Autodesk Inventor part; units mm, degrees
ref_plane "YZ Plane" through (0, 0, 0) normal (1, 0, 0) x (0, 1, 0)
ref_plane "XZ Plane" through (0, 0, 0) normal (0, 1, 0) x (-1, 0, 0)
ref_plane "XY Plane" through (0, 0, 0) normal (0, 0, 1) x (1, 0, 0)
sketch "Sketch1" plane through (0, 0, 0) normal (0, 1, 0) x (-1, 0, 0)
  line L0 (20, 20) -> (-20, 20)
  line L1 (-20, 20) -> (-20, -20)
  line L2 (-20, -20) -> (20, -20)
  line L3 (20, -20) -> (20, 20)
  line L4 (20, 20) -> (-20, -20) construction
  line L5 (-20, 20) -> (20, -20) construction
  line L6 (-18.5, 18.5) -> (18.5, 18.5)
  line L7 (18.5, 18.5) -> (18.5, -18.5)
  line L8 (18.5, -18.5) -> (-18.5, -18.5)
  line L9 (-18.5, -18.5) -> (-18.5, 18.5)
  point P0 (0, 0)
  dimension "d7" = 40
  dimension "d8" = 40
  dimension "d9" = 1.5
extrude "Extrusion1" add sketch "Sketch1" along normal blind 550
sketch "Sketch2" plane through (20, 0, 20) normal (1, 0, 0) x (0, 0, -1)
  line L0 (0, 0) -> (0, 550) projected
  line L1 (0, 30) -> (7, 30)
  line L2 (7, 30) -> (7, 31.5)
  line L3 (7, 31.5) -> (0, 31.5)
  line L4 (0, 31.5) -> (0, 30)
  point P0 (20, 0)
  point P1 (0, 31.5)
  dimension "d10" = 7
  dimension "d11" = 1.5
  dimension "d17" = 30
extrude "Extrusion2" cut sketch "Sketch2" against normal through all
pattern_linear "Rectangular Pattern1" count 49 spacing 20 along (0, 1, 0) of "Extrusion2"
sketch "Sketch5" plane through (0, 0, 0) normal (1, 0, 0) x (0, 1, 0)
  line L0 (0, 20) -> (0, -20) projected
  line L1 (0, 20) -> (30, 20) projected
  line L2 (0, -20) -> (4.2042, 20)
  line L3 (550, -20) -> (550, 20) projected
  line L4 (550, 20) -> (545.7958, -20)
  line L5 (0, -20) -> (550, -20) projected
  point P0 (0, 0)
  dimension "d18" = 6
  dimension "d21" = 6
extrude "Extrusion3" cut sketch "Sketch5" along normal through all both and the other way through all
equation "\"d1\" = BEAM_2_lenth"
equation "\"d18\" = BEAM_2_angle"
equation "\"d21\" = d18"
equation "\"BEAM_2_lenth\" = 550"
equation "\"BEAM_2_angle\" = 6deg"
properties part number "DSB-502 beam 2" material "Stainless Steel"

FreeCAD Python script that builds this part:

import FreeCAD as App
import Part
import Sketcher

V = App.Vector
Q = App.Units.Quantity


def add_polygon(sketch, points):
    """Adds a closed chain of lines whose ends are joined by coincident constraints."""
    first, n = sketch.GeometryCount, len(points)
    for a, b in zip(points, points[1:] + points[:1]):
        sketch.addGeometry(Part.LineSegment(App.Vector(*a, 0), App.Vector(*b, 0)), False)
    for i in range(n):
        sketch.addConstraint(Sketcher.Constraint("Coincident", first + i, 2, first + (i + 1) % n, 1))

doc = App.newDocument("Part")
body = doc.addObject("PartDesign::Body", "Body")

# Sketch on XZ plane
sketch1 = body.newObject("Sketcher::SketchObject", "Sketch")
sketch1.AttachmentSupport = (doc.getObject("XZ_Plane"), [""])
sketch1.MapMode = "FlatFace"
add_polygon(sketch1, [(-20, -20), (-20, 20), (20, 20), (20, -20)])  # lines 0-3
add_polygon(sketch1, [(18, -18), (18, 18), (-18, 18), (-18, -18)])  # lines 4-7
sketch1.addConstraint([
    Sketcher.Constraint("Vertical", 0),
    Sketcher.Constraint("Horizontal", 1),
    Sketcher.Constraint("Vertical", 2),
    Sketcher.Constraint("Horizontal", 3),
    Sketcher.Constraint("Vertical", 4),
    Sketcher.Constraint("Horizontal", 5),
    Sketcher.Constraint("Vertical", 6),
    Sketcher.Constraint("Horizontal", 7),
    Sketcher.Constraint("Symmetric", 0, 2, 2, 2, -1, 1),
    Sketcher.Constraint("Symmetric", 4, 2, 6, 2, -1, 1),
    Sketcher.Constraint("Equal", 3, 0),
    Sketcher.Constraint("Equal", 7, 4),
    Sketcher.Constraint("DistanceX", 1, 1, 1, 2, Q("40 mm")),
    Sketcher.Constraint("DistanceX", 4, 2, 1, 2, Q("1.5 mm")),
])
pad1 = body.newObject("PartDesign::Pad", "Pad")
pad1.Profile = sketch1
pad1.Length = 550
pad1.Reversed = True

# Sketch on YZ plane
sketch2 = body.newObject("Sketcher::SketchObject", "Sketch001")
sketch2.AttachmentSupport = (doc.getObject("YZ_Plane"), [""])
sketch2.MapMode = "FlatFace"
sketch2.AttachmentOffset = App.Placement(V(0, 0, 20), App.Rotation())
add_polygon(sketch2, [(31.5, 20), (30, 20), (30, 13), (31.5, 13)])  # lines 0-3
sketch2.addConstraint([
    Sketcher.Constraint("Horizontal", 0),
    Sketcher.Constraint("Vertical", 1),
    Sketcher.Constraint("Horizontal", 2),
    Sketcher.Constraint("Vertical", 3),
    Sketcher.Constraint("DistanceY", 1, 2, 1, 1, Q("7 mm")),
    Sketcher.Constraint("DistanceX", 0, 2, 0, 1, Q("1.5 mm")),
    Sketcher.Constraint("DistanceX", -1, 1, 0, 2, Q("30 mm")),
    Sketcher.Constraint("DistanceY", -1, 1, 0, 2, Q("20 mm")),
])
pocket1 = body.newObject("PartDesign::Pocket", "Pocket")
pocket1.Profile = sketch2
pocket1.Type = "ThroughAll"
doc.recompute()

linearpattern = body.newObject("PartDesign::LinearPattern", "LinearPattern")
linearpattern.Originals = [pocket1]
linearpattern.Direction = (doc.getObject("Y_Axis"), [""])
linearpattern.Mode = "offset"
linearpattern.Offset = 20
linearpattern.Occurrences = 49
body.Tip = linearpattern

# Sketch on YZ plane
sketch3 = body.newObject("Sketcher::SketchObject", "Sketch002")
sketch3.AttachmentSupport = (doc.getObject("YZ_Plane"), [""])
sketch3.MapMode = "FlatFace"
add_polygon(sketch3, [(4.2, 20), (0, 20), (0, -20)])  # lines 0-2
add_polygon(sketch3, [(550, 20), (545.8, -20), (550, -20)])  # lines 3-5
sketch3.addConstraint([
    Sketcher.Constraint("Horizontal", 0),
    Sketcher.Constraint("Vertical", 1),
    Sketcher.Constraint("Horizontal", 4),
    Sketcher.Constraint("Vertical", 5),
    Sketcher.Constraint("Symmetric", 0, 2, 1, 2, -1, 1),
    Sketcher.Constraint("Parallel", 2, 3),
    Sketcher.Constraint("Horizontal", 1, 2, 3, 2),
    Sketcher.Constraint("Horizontal", 2, 2, 5, 2),
    Sketcher.Constraint("DistanceY", 1, 2, 1, 1, Q("40 mm")),
    Sketcher.Constraint("Angle", 2, Q("84 deg")),
    Sketcher.Constraint("DistanceX", -1, 1, 4, 2, Q("550 mm")),
])
pocket2 = body.newObject("PartDesign::Pocket", "Pocket001")
pocket2.Profile = sketch3
pocket2.Type = "ThroughAll"
pocket2.Midplane = True

doc.recompute()
